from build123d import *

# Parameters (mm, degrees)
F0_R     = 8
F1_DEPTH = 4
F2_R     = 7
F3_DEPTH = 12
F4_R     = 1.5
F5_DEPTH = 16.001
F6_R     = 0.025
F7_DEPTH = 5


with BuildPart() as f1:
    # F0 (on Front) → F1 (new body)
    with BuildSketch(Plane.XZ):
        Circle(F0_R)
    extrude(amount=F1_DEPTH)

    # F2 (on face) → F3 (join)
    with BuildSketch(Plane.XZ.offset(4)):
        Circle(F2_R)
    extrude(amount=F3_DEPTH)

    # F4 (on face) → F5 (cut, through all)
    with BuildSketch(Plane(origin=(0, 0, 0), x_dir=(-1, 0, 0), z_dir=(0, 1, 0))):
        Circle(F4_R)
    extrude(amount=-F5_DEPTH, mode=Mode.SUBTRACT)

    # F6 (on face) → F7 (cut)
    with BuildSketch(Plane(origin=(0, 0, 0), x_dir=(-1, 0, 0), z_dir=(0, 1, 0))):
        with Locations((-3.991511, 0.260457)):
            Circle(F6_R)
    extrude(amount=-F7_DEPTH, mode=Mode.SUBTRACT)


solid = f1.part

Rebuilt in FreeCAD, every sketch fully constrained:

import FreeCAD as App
import Part
import Sketcher

V = App.Vector
Q = App.Units.Quantity

doc = App.newDocument("Part")
params = doc.addObject("Spreadsheet::Sheet", "Params")
for row, (alias, value) in enumerate([
    ("sketch1_diameter", "16 mm"),
    ("pad1_length", "4 mm"),
    ("sketch2_diameter", "14 mm"),
    ("pad2_length", "12 mm"),
    ("sketch3_diameter", "3 mm"),
    ("sketch4_diameter", "0.05 mm"),
    ("pocket2_length", "5 mm"),
], start=1):
    params.set(f"A{row}", alias)
    params.set(f"B{row}", "=" + value)
    params.setAlias(f"B{row}", alias)

body = doc.addObject("PartDesign::Body", "Body")

sketch1 = body.newObject("Sketcher::SketchObject", "Sketch")
sketch1.AttachmentSupport = (doc.getObject("XZ_Plane"), [""])
sketch1.MapMode = "FlatFace"
sketch1.addGeometry(Part.Circle(V(0, 0, 0), V(0, 0, 1), 8), False)
sketch1.addConstraint([
    Sketcher.Constraint("Coincident", 0, 3, -1, 1),
    Sketcher.Constraint("Diameter", 0, Q("16 mm")),
])
sketch1.setExpression("Constraints[1]", "Params.sketch1_diameter")
pad1 = body.newObject("PartDesign::Pad", "Pad")
pad1.Profile = sketch1
pad1.setExpression("Length", "Params.pad1_length")

sketch2 = body.newObject("Sketcher::SketchObject", "Sketch001")
sketch2.AttachmentSupport = (doc.getObject("XZ_Plane"), [""])
sketch2.MapMode = "FlatFace"
sketch2.AttachmentOffset = App.Placement(V(0, 0, 4), App.Rotation())
sketch2.addGeometry(Part.Circle(V(0, 0, 0), V(0, 0, 1), 7), False)
sketch2.addConstraint([
    Sketcher.Constraint("Coincident", 0, 3, -1, 1),
    Sketcher.Constraint("Diameter", 0, Q("14 mm")),
])
sketch2.setExpression("Constraints[1]", "Params.sketch2_diameter")
pad2 = body.newObject("PartDesign::Pad", "Pad001")
pad2.Profile = sketch2
pad2.setExpression("Length", "Params.pad2_length")

sketch3 = body.newObject("Sketcher::SketchObject", "Sketch002")
sketch3.AttachmentSupport = (doc.getObject("XZ_Plane"), [""])
sketch3.MapMode = "FlatFace"
sketch3.addGeometry(Part.Circle(V(0, 0, 0), V(0, 0, 1), 1.5), False)
sketch3.addConstraint([
    Sketcher.Constraint("Coincident", 0, 3, -1, 1),
    Sketcher.Constraint("Diameter", 0, Q("3 mm")),
])
sketch3.setExpression("Constraints[1]", "Params.sketch3_diameter")
pocket1 = body.newObject("PartDesign::Pocket", "Pocket")
pocket1.Profile = sketch3
pocket1.Type = "ThroughAll"
pocket1.Reversed = True

sketch4 = body.newObject("Sketcher::SketchObject", "Sketch003")
sketch4.AttachmentSupport = (doc.getObject("XZ_Plane"), [""])
sketch4.MapMode = "FlatFace"
sketch4.addGeometry(Part.Circle(V(3.992, 0.26, 0), V(0, 0, 1), 0.025), False)
sketch4.addConstraint([
    Sketcher.Constraint("Diameter", 0, Q("0.05 mm")),
    Sketcher.Constraint("DistanceX", -1, 1, 0, 3, Q("3.991511 mm")),
    Sketcher.Constraint("DistanceY", -1, 1, 0, 3, Q("0.260457 mm")),
])
sketch4.setExpression("Constraints[0]", "Params.sketch4_diameter")
pocket2 = body.newObject("PartDesign::Pocket", "Pocket001")
pocket2.Profile = sketch4
pocket2.setExpression("Length", "Params.pocket2_length")
pocket2.Reversed = True

doc.recompute()
